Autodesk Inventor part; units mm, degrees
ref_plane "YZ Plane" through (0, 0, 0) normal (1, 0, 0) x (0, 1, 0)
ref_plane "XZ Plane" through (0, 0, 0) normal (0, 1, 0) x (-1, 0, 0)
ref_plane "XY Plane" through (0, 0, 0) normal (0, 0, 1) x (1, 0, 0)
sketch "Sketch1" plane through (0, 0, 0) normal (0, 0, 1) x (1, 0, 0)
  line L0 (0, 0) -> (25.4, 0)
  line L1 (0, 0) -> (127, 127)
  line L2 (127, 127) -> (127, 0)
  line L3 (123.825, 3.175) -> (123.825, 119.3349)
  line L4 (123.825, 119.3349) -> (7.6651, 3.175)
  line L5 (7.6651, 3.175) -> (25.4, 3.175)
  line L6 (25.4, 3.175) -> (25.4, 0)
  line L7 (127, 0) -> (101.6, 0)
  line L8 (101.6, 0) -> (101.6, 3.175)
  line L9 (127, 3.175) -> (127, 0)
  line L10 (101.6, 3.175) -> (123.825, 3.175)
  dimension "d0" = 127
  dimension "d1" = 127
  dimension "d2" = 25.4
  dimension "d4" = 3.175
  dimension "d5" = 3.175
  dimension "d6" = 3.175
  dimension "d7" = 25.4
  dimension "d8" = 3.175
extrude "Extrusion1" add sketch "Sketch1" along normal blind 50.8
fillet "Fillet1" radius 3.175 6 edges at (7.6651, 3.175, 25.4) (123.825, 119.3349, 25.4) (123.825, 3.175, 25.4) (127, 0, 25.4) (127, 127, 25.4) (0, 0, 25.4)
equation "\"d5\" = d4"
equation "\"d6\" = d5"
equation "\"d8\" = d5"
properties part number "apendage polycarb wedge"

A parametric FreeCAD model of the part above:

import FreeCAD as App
import Part
import Sketcher

V = App.Vector
Q = App.Units.Quantity


def edges_at(feature, points):
    """Names of the edges that pass closest to the given points."""
    edges = feature.Shape.Edges
    near = lambda p: min(range(len(edges)), key=lambda i: edges[i].distToShape(Part.Vertex(*p))[0])
    return sorted({f"Edge{near(p) + 1}" for p in points})

doc = App.newDocument("Part")
body = doc.addObject("PartDesign::Body", "Body")

sketch1 = body.newObject("Sketcher::SketchObject", "Sketch")
sketch1.AttachmentSupport = (doc.getObject("XY_Plane"), [""])
sketch1.MapMode = "FlatFace"
sketch1.addGeometry(Part.LineSegment(V(127, 127, 0), V(0, 0, 0)), False)
sketch1.addGeometry(Part.LineSegment(V(0, 0, 0), V(25.4, 0, 0)), False)
sketch1.addGeometry(Part.LineSegment(V(25.4, 0, 0), V(25.4, 3.2, 0)), False)
sketch1.addGeometry(Part.LineSegment(V(25.4, 3.2, 0), V(7.7, 3.2, 0)), False)
sketch1.addGeometry(Part.LineSegment(V(7.7, 3.2, 0), V(123.8, 119.3, 0)), False)
sketch1.addGeometry(Part.LineSegment(V(123.8, 119.3, 0), V(123.8, 3.2, 0)), False)
sketch1.addGeometry(Part.LineSegment(V(123.8, 3.2, 0), V(101.6, 3.2, 0)), False)
sketch1.addGeometry(Part.LineSegment(V(101.6, 3.2, 0), V(101.6, 0, 0)), False)
sketch1.addGeometry(Part.LineSegment(V(101.6, 0, 0), V(127, 0, 0)), False)
sketch1.addGeometry(Part.LineSegment(V(127, 0, 0), V(127, 127, 0)), False)
sketch1.addConstraint(Sketcher.Constraint("Coincident", 0, 2, 1, 1))
sketch1.addConstraint(Sketcher.Constraint("Coincident", 1, 2, 2, 1))
sketch1.addConstraint(Sketcher.Constraint("Coincident", 2, 2, 3, 1))
sketch1.addConstraint(Sketcher.Constraint("Coincident", 3, 2, 4, 1))
sketch1.addConstraint(Sketcher.Constraint("Coincident", 4, 2, 5, 1))
sketch1.addConstraint(Sketcher.Constraint("Coincident", 5, 2, 6, 1))
sketch1.addConstraint(Sketcher.Constraint("Coincident", 6, 2, 7, 1))
sketch1.addConstraint(Sketcher.Constraint("Coincident", 7, 2, 8, 1))
sketch1.addConstraint(Sketcher.Constraint("Coincident", 8, 2, 9, 1))
sketch1.addConstraint(Sketcher.Constraint("Coincident", 9, 2, 0, 1))
sketch1.addConstraint(Sketcher.Constraint("Horizontal", 1))
sketch1.addConstraint(Sketcher.Constraint("Vertical", 2))
sketch1.addConstraint(Sketcher.Constraint("Horizontal", 3))
sketch1.addConstraint(Sketcher.Constraint("Vertical", 5))
sketch1.addConstraint(Sketcher.Constraint("Horizontal", 6))
sketch1.addConstraint(Sketcher.Constraint("Vertical", 7))
sketch1.addConstraint(Sketcher.Constraint("Horizontal", 8))
sketch1.addConstraint(Sketcher.Constraint("Vertical", 9))
sketch1.addConstraint(Sketcher.Constraint("Coincident", 0, 2, -1, 1))
sketch1.addConstraint(Sketcher.Constraint("PointOnObject", 7, 2, -1))
sketch1.addConstraint(Sketcher.Constraint("Parallel", 0, 4))
sketch1.addConstraint(Sketcher.Constraint("Horizontal", 3, 2, 5, 2))
sketch1.addConstraint(Sketcher.Constraint("Equal", 1, 8))
sketch1.addConstraint(Sketcher.Constraint("DistanceX", 1, 1, 1, 2, Q("1 in")))
sketch1.addConstraint(Sketcher.Constraint("DistanceY", 9, 1, 9, 2, Q("5 in")))
sketch1.addConstraint(Sketcher.Constraint("DistanceX", -1, 1, 8, 2, Q("5 in")))
sketch1.addConstraint(Sketcher.Constraint("DistanceY", 2, 1, 2, 2, Q("0.125 in")))
sketch1.addConstraint(Sketcher.Constraint("DistanceX", 5, 2, 8, 2, Q("0.125 in")))
sketch1.addConstraint(Sketcher.Constraint("DistanceX", 3, 2, 3, 1, Q("17.735 mm")))
pad1 = body.newObject("PartDesign::Pad", "Pad")
pad1.Profile = sketch1
pad1.Length = Q("2 in")
doc.recompute()

fillet = body.newObject("PartDesign::Fillet", "Fillet")
fillet.Base = (pad1, edges_at(pad1, [
    (7.665, 3.175, 25.4),
    (123.825, 119.335, 25.4),
    (123.825, 3.175, 25.4),
    (127, 0, 25.4),
    (127, 127, 25.4),
    (0, 0, 25.4),
]))
fillet.Radius = Q("0.125 in")

doc.recompute()
